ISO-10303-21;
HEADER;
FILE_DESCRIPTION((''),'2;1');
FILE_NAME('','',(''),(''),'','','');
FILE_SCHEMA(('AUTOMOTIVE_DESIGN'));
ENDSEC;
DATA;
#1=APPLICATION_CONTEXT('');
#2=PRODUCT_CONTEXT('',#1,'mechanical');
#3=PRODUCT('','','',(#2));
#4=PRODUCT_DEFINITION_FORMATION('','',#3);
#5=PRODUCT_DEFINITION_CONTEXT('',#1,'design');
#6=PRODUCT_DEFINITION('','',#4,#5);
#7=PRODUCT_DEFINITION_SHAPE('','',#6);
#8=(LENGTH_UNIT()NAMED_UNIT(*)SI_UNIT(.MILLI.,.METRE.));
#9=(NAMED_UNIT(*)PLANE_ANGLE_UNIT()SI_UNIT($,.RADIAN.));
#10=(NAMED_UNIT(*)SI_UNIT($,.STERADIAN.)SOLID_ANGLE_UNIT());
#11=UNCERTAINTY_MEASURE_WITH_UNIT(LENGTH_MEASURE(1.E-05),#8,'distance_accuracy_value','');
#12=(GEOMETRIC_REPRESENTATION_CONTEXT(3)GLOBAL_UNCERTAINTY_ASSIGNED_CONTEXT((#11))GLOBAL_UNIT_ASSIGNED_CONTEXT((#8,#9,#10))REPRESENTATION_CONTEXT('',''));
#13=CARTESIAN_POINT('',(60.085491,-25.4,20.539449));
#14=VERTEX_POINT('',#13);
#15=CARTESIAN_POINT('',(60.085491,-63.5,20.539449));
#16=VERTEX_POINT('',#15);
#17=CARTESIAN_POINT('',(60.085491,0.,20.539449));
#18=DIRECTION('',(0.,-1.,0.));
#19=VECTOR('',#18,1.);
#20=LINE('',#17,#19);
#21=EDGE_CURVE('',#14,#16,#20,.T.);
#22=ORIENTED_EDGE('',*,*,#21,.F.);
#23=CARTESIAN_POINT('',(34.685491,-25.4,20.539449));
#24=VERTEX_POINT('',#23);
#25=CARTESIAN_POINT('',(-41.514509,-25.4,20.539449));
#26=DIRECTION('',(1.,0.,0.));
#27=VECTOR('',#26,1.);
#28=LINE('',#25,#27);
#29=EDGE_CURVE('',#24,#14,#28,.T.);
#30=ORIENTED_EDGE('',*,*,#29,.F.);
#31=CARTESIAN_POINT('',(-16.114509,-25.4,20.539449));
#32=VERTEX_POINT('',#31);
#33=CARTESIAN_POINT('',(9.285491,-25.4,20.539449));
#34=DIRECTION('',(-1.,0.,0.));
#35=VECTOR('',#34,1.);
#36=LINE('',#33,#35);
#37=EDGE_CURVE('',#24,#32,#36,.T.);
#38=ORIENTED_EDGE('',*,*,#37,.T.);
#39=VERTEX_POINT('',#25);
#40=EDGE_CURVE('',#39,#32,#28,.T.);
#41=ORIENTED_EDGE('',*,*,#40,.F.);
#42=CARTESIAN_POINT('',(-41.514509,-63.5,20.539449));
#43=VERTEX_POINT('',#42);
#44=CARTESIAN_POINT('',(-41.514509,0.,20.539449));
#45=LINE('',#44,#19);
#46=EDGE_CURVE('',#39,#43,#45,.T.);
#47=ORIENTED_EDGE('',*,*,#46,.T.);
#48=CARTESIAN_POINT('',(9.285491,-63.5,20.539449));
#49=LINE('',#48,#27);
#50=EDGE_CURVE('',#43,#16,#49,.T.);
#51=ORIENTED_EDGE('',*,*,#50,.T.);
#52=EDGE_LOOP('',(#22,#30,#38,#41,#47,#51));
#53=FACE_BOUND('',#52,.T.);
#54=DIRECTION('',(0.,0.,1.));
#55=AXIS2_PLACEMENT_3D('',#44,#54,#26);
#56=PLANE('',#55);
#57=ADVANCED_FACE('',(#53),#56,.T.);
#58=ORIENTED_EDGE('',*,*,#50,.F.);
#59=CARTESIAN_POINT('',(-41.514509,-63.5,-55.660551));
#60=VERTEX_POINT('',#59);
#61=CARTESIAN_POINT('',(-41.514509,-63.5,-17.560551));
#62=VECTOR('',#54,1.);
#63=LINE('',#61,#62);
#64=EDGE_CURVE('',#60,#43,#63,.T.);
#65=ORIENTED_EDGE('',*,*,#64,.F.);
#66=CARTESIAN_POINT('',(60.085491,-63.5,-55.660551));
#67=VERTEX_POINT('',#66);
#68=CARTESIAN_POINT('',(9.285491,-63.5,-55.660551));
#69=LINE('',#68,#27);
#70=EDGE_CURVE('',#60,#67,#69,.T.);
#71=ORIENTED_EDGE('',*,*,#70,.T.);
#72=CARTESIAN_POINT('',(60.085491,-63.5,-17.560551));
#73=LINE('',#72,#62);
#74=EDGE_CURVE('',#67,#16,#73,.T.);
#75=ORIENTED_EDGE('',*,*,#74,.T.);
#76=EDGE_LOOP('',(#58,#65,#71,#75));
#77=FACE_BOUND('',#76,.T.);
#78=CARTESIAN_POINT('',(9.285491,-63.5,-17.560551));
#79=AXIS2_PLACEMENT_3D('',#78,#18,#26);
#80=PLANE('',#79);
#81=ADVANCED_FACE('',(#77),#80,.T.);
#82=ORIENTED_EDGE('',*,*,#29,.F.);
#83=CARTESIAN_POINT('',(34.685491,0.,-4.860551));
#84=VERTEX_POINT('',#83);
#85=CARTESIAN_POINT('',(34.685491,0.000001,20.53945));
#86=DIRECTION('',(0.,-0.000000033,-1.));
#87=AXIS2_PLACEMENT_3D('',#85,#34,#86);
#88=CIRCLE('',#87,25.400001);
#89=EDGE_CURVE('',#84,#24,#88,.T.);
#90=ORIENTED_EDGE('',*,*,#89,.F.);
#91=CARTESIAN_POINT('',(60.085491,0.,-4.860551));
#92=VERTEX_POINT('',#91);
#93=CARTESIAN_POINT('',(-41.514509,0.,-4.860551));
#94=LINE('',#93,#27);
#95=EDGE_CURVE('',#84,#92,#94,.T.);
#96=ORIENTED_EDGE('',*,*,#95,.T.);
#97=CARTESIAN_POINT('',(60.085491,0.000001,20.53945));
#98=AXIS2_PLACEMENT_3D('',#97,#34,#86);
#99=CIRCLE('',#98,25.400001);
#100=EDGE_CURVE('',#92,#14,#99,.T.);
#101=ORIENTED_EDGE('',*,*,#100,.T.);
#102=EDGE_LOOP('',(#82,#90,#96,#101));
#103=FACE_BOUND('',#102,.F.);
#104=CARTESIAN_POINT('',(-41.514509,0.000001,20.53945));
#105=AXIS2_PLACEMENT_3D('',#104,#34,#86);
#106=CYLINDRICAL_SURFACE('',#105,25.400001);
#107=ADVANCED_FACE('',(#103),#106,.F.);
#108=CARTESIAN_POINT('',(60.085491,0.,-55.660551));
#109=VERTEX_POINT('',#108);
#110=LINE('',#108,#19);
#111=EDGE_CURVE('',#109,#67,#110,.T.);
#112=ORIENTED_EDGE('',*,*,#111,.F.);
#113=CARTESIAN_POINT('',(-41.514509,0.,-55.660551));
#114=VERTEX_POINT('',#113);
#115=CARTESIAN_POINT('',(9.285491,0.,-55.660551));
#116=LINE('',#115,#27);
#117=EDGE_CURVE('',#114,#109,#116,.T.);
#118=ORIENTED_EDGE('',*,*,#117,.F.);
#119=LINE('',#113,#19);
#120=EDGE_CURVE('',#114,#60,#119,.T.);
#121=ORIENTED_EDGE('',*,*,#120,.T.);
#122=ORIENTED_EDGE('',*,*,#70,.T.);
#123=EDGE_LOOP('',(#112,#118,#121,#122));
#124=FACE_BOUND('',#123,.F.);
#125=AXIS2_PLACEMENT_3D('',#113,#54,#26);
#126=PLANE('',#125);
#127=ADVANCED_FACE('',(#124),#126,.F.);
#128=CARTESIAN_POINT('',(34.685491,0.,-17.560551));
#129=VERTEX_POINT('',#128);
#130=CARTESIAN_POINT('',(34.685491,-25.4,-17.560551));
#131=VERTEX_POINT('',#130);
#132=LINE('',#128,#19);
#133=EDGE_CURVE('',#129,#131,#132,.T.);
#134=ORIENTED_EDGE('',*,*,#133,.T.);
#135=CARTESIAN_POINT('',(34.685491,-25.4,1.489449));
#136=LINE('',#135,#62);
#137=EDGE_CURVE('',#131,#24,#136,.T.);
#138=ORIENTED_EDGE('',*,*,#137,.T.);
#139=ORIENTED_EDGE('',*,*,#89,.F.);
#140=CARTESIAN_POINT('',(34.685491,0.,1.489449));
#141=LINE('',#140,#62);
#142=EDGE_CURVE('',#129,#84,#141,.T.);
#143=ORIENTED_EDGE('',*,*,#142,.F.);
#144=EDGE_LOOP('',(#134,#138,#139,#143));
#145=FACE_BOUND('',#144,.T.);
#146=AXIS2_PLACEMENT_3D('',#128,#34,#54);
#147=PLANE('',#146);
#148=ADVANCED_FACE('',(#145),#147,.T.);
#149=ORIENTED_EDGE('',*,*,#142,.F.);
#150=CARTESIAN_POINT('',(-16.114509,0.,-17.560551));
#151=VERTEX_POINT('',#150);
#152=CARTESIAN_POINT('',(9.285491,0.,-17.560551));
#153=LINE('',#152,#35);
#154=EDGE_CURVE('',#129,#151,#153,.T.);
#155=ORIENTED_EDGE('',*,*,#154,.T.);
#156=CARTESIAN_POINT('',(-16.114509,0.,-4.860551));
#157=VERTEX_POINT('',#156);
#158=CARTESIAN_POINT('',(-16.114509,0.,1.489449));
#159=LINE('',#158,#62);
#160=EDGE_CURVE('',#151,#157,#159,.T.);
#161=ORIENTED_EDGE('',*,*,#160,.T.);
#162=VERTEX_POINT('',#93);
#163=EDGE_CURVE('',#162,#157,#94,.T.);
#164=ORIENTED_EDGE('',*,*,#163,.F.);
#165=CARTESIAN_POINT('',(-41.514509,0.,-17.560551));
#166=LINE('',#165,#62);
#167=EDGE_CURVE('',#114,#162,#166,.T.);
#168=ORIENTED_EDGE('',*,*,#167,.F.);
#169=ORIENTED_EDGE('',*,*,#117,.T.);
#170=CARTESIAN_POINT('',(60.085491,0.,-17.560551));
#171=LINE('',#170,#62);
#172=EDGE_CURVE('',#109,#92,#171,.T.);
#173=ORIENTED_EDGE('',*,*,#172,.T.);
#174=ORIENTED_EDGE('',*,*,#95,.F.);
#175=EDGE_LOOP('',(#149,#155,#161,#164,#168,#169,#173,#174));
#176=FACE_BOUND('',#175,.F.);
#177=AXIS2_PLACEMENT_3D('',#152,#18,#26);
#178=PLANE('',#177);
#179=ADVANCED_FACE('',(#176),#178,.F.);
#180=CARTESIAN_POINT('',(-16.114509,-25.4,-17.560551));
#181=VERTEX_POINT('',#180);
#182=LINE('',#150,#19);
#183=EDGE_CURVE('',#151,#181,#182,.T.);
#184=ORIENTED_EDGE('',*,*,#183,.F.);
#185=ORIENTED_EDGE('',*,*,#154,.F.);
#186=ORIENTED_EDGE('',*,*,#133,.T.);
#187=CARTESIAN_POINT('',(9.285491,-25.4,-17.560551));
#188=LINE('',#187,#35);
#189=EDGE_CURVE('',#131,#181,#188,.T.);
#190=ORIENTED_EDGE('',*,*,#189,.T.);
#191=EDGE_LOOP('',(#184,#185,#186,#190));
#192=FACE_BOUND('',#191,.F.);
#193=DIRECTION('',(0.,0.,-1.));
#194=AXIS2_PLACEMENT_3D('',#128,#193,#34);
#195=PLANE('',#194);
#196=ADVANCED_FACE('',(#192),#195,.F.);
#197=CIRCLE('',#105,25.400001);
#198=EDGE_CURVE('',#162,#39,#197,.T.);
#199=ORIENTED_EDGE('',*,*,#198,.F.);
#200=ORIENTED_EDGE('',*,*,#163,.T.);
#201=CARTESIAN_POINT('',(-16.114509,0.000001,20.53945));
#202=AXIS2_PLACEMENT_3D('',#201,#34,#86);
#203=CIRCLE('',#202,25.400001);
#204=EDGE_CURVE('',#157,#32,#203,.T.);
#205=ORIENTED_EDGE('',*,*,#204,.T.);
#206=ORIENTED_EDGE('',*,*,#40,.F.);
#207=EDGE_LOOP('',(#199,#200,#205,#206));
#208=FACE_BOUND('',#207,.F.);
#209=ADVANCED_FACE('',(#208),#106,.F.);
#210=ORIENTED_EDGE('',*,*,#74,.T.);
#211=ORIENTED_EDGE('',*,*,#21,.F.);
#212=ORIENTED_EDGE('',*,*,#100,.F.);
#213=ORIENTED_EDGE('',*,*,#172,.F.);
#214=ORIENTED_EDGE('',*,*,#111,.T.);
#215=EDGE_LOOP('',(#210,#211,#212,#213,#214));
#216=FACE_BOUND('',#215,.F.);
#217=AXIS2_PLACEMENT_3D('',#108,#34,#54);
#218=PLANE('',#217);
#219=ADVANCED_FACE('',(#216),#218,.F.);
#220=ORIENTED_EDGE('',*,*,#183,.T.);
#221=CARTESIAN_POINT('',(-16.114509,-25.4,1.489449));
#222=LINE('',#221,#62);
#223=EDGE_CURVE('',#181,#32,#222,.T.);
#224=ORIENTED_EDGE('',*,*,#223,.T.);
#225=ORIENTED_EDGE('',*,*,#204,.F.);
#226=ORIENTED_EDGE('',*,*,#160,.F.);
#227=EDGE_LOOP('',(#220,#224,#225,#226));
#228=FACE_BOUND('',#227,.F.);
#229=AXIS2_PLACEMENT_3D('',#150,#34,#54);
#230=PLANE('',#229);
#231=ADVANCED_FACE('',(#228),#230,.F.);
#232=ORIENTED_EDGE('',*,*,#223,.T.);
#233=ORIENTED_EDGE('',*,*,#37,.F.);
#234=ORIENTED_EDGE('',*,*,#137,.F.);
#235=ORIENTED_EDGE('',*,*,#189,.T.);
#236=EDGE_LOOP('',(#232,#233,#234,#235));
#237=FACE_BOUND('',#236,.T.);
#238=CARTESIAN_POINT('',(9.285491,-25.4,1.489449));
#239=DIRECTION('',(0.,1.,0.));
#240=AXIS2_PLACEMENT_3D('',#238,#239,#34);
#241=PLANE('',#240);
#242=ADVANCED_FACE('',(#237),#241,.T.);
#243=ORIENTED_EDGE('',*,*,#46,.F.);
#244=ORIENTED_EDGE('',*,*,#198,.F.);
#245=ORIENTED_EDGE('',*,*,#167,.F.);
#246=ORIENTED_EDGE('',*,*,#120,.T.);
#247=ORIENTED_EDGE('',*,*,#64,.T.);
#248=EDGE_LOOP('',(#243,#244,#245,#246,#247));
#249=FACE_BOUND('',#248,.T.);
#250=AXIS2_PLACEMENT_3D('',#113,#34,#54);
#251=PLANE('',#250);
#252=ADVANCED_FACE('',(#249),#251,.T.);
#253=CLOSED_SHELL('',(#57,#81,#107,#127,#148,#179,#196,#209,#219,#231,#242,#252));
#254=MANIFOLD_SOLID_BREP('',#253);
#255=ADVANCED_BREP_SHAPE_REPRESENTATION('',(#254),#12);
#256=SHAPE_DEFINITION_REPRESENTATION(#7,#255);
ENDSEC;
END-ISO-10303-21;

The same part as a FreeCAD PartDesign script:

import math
import FreeCAD as App
import Part
import Sketcher
Q = App.Units.Quantity

doc = App.newDocument("Part")
body = doc.addObject("PartDesign::Body", "Body")

# Sketch on XZ plane
sketch1 = body.newObject("Sketcher::SketchObject", "Sketch")
sketch1.AttachmentSupport = (doc.getObject("XZ_Plane"), [""])
sketch1.MapMode = "FlatFace"
sketch1.addGeometry([
    Part.LineSegment(App.Vector(-42, 21, 0), App.Vector(-42, -56, 0)),
    Part.LineSegment(App.Vector(-42, -56, 0), App.Vector(60, -56, 0)),
    Part.LineSegment(App.Vector(60, -56, 0), App.Vector(60, 21, 0)),
    Part.LineSegment(App.Vector(60, 21, 0), App.Vector(-42, 21, 0)),
], False)
sketch1.addConstraint([
    Sketcher.Constraint("Coincident", 0, 2, 1, 1),
    Sketcher.Constraint("Coincident", 1, 2, 2, 1),
    Sketcher.Constraint("Coincident", 2, 2, 3, 1),
    Sketcher.Constraint("Coincident", 3, 2, 0, 1),
    Sketcher.Constraint("Vertical", 0),
    Sketcher.Constraint("Horizontal", 1),
    Sketcher.Constraint("Vertical", 2),
    Sketcher.Constraint("Horizontal", 3),
    Sketcher.Constraint("DistanceX", 1, 1, 1, 2, Q("4 in")),
    Sketcher.Constraint("DistanceY", 0, 2, 0, 1, Q("3 in")),
    Sketcher.Constraint("DistanceX", 0, 2, -1, 1, Q("41.514509 mm")),
    Sketcher.Constraint("DistanceY", 0, 2, -1, 1, Q("55.660551 mm")),
])
pad1 = body.newObject("PartDesign::Pad", "Pad")
pad1.Profile = sketch1
pad1.Length = Q("2.5 in")

# Sketch on XZ plane
sketch2 = body.newObject("Sketcher::SketchObject", "Sketch001")
sketch2.AttachmentSupport = (doc.getObject("XZ_Plane"), [""])
sketch2.MapMode = "FlatFace"
sketch2.addGeometry([
    Part.LineSegment(App.Vector(35, 21, 0), App.Vector(35, -18, 0)),
    Part.LineSegment(App.Vector(35, -18, 0), App.Vector(-16, -18, 0)),
    Part.LineSegment(App.Vector(-16, -18, 0), App.Vector(-16, 21, 0)),
    Part.LineSegment(App.Vector(-16, 21, 0), App.Vector(35, 21, 0)),
], False)
sketch2.addConstraint([
    Sketcher.Constraint("Coincident", 0, 2, 1, 1),
    Sketcher.Constraint("Coincident", 1, 2, 2, 1),
    Sketcher.Constraint("Coincident", 2, 2, 3, 1),
    Sketcher.Constraint("Coincident", 3, 2, 0, 1),
    Sketcher.Constraint("Vertical", 0),
    Sketcher.Constraint("Horizontal", 1),
    Sketcher.Constraint("Vertical", 2),
    Sketcher.Constraint("Horizontal", 3),
    Sketcher.Constraint("DistanceX", 1, 2, 1, 1, Q("2 in")),
    Sketcher.Constraint("DistanceY", 0, 2, 0, 1, Q("1.5 in")),
    Sketcher.Constraint("DistanceX", -1, 1, 0, 2, Q("34.685491 mm")),
    Sketcher.Constraint("DistanceY", 0, 2, -1, 1, Q("17.560551 mm")),
])
pocket1 = body.newObject("PartDesign::Pocket", "Pocket")
pocket1.Profile = sketch2
pocket1.Length = Q("1 in")
pocket1.Reversed = True

# Sketch on YZ plane
sketch3 = body.newObject("Sketcher::SketchObject", "Sketch002")
sketch3.AttachmentSupport = (doc.getObject("YZ_Plane"), [""])
sketch3.MapMode = "FlatFace"
sketch3.AttachmentOffset = App.Placement(App.Vector(0, 0, -41.514509), App.Rotation())
sketch3.addGeometry([
    Part.LineSegment(App.Vector(0, 21, 0), App.Vector(0, -5, 0)),
    Part.ArcOfCircle(Part.Circle(App.Vector(0, 21, 0), App.Vector(0, 0, 1), 25), math.radians(-180), math.radians(-90)),
    Part.LineSegment(App.Vector(-25, 21, 0), App.Vector(0, 21, 0)),
], False)
sketch3.addConstraint([
    Sketcher.Constraint("Coincident", 0, 2, 1, 2),
    Sketcher.Constraint("Coincident", 1, 1, 2, 1),
    Sketcher.Constraint("Coincident", 2, 2, 0, 1),
    Sketcher.Constraint("Vertical", 0),
    Sketcher.Constraint("Horizontal", 2),
    Sketcher.Constraint("Coincident", 2, 2, 1, 3),
    Sketcher.Constraint("PointOnObject", 1, 3, -2),
    Sketcher.Constraint("Radius", 1, Q("1 in")),
    Sketcher.Constraint("DistanceY", -1, 1, 1, 3, Q("20.53945 mm")),
])
pocket2 = body.newObject("PartDesign::Pocket", "Pocket001")
pocket2.Profile = sketch3
pocket2.Type = "ThroughAll"
pocket2.Reversed = True

doc.recompute()
